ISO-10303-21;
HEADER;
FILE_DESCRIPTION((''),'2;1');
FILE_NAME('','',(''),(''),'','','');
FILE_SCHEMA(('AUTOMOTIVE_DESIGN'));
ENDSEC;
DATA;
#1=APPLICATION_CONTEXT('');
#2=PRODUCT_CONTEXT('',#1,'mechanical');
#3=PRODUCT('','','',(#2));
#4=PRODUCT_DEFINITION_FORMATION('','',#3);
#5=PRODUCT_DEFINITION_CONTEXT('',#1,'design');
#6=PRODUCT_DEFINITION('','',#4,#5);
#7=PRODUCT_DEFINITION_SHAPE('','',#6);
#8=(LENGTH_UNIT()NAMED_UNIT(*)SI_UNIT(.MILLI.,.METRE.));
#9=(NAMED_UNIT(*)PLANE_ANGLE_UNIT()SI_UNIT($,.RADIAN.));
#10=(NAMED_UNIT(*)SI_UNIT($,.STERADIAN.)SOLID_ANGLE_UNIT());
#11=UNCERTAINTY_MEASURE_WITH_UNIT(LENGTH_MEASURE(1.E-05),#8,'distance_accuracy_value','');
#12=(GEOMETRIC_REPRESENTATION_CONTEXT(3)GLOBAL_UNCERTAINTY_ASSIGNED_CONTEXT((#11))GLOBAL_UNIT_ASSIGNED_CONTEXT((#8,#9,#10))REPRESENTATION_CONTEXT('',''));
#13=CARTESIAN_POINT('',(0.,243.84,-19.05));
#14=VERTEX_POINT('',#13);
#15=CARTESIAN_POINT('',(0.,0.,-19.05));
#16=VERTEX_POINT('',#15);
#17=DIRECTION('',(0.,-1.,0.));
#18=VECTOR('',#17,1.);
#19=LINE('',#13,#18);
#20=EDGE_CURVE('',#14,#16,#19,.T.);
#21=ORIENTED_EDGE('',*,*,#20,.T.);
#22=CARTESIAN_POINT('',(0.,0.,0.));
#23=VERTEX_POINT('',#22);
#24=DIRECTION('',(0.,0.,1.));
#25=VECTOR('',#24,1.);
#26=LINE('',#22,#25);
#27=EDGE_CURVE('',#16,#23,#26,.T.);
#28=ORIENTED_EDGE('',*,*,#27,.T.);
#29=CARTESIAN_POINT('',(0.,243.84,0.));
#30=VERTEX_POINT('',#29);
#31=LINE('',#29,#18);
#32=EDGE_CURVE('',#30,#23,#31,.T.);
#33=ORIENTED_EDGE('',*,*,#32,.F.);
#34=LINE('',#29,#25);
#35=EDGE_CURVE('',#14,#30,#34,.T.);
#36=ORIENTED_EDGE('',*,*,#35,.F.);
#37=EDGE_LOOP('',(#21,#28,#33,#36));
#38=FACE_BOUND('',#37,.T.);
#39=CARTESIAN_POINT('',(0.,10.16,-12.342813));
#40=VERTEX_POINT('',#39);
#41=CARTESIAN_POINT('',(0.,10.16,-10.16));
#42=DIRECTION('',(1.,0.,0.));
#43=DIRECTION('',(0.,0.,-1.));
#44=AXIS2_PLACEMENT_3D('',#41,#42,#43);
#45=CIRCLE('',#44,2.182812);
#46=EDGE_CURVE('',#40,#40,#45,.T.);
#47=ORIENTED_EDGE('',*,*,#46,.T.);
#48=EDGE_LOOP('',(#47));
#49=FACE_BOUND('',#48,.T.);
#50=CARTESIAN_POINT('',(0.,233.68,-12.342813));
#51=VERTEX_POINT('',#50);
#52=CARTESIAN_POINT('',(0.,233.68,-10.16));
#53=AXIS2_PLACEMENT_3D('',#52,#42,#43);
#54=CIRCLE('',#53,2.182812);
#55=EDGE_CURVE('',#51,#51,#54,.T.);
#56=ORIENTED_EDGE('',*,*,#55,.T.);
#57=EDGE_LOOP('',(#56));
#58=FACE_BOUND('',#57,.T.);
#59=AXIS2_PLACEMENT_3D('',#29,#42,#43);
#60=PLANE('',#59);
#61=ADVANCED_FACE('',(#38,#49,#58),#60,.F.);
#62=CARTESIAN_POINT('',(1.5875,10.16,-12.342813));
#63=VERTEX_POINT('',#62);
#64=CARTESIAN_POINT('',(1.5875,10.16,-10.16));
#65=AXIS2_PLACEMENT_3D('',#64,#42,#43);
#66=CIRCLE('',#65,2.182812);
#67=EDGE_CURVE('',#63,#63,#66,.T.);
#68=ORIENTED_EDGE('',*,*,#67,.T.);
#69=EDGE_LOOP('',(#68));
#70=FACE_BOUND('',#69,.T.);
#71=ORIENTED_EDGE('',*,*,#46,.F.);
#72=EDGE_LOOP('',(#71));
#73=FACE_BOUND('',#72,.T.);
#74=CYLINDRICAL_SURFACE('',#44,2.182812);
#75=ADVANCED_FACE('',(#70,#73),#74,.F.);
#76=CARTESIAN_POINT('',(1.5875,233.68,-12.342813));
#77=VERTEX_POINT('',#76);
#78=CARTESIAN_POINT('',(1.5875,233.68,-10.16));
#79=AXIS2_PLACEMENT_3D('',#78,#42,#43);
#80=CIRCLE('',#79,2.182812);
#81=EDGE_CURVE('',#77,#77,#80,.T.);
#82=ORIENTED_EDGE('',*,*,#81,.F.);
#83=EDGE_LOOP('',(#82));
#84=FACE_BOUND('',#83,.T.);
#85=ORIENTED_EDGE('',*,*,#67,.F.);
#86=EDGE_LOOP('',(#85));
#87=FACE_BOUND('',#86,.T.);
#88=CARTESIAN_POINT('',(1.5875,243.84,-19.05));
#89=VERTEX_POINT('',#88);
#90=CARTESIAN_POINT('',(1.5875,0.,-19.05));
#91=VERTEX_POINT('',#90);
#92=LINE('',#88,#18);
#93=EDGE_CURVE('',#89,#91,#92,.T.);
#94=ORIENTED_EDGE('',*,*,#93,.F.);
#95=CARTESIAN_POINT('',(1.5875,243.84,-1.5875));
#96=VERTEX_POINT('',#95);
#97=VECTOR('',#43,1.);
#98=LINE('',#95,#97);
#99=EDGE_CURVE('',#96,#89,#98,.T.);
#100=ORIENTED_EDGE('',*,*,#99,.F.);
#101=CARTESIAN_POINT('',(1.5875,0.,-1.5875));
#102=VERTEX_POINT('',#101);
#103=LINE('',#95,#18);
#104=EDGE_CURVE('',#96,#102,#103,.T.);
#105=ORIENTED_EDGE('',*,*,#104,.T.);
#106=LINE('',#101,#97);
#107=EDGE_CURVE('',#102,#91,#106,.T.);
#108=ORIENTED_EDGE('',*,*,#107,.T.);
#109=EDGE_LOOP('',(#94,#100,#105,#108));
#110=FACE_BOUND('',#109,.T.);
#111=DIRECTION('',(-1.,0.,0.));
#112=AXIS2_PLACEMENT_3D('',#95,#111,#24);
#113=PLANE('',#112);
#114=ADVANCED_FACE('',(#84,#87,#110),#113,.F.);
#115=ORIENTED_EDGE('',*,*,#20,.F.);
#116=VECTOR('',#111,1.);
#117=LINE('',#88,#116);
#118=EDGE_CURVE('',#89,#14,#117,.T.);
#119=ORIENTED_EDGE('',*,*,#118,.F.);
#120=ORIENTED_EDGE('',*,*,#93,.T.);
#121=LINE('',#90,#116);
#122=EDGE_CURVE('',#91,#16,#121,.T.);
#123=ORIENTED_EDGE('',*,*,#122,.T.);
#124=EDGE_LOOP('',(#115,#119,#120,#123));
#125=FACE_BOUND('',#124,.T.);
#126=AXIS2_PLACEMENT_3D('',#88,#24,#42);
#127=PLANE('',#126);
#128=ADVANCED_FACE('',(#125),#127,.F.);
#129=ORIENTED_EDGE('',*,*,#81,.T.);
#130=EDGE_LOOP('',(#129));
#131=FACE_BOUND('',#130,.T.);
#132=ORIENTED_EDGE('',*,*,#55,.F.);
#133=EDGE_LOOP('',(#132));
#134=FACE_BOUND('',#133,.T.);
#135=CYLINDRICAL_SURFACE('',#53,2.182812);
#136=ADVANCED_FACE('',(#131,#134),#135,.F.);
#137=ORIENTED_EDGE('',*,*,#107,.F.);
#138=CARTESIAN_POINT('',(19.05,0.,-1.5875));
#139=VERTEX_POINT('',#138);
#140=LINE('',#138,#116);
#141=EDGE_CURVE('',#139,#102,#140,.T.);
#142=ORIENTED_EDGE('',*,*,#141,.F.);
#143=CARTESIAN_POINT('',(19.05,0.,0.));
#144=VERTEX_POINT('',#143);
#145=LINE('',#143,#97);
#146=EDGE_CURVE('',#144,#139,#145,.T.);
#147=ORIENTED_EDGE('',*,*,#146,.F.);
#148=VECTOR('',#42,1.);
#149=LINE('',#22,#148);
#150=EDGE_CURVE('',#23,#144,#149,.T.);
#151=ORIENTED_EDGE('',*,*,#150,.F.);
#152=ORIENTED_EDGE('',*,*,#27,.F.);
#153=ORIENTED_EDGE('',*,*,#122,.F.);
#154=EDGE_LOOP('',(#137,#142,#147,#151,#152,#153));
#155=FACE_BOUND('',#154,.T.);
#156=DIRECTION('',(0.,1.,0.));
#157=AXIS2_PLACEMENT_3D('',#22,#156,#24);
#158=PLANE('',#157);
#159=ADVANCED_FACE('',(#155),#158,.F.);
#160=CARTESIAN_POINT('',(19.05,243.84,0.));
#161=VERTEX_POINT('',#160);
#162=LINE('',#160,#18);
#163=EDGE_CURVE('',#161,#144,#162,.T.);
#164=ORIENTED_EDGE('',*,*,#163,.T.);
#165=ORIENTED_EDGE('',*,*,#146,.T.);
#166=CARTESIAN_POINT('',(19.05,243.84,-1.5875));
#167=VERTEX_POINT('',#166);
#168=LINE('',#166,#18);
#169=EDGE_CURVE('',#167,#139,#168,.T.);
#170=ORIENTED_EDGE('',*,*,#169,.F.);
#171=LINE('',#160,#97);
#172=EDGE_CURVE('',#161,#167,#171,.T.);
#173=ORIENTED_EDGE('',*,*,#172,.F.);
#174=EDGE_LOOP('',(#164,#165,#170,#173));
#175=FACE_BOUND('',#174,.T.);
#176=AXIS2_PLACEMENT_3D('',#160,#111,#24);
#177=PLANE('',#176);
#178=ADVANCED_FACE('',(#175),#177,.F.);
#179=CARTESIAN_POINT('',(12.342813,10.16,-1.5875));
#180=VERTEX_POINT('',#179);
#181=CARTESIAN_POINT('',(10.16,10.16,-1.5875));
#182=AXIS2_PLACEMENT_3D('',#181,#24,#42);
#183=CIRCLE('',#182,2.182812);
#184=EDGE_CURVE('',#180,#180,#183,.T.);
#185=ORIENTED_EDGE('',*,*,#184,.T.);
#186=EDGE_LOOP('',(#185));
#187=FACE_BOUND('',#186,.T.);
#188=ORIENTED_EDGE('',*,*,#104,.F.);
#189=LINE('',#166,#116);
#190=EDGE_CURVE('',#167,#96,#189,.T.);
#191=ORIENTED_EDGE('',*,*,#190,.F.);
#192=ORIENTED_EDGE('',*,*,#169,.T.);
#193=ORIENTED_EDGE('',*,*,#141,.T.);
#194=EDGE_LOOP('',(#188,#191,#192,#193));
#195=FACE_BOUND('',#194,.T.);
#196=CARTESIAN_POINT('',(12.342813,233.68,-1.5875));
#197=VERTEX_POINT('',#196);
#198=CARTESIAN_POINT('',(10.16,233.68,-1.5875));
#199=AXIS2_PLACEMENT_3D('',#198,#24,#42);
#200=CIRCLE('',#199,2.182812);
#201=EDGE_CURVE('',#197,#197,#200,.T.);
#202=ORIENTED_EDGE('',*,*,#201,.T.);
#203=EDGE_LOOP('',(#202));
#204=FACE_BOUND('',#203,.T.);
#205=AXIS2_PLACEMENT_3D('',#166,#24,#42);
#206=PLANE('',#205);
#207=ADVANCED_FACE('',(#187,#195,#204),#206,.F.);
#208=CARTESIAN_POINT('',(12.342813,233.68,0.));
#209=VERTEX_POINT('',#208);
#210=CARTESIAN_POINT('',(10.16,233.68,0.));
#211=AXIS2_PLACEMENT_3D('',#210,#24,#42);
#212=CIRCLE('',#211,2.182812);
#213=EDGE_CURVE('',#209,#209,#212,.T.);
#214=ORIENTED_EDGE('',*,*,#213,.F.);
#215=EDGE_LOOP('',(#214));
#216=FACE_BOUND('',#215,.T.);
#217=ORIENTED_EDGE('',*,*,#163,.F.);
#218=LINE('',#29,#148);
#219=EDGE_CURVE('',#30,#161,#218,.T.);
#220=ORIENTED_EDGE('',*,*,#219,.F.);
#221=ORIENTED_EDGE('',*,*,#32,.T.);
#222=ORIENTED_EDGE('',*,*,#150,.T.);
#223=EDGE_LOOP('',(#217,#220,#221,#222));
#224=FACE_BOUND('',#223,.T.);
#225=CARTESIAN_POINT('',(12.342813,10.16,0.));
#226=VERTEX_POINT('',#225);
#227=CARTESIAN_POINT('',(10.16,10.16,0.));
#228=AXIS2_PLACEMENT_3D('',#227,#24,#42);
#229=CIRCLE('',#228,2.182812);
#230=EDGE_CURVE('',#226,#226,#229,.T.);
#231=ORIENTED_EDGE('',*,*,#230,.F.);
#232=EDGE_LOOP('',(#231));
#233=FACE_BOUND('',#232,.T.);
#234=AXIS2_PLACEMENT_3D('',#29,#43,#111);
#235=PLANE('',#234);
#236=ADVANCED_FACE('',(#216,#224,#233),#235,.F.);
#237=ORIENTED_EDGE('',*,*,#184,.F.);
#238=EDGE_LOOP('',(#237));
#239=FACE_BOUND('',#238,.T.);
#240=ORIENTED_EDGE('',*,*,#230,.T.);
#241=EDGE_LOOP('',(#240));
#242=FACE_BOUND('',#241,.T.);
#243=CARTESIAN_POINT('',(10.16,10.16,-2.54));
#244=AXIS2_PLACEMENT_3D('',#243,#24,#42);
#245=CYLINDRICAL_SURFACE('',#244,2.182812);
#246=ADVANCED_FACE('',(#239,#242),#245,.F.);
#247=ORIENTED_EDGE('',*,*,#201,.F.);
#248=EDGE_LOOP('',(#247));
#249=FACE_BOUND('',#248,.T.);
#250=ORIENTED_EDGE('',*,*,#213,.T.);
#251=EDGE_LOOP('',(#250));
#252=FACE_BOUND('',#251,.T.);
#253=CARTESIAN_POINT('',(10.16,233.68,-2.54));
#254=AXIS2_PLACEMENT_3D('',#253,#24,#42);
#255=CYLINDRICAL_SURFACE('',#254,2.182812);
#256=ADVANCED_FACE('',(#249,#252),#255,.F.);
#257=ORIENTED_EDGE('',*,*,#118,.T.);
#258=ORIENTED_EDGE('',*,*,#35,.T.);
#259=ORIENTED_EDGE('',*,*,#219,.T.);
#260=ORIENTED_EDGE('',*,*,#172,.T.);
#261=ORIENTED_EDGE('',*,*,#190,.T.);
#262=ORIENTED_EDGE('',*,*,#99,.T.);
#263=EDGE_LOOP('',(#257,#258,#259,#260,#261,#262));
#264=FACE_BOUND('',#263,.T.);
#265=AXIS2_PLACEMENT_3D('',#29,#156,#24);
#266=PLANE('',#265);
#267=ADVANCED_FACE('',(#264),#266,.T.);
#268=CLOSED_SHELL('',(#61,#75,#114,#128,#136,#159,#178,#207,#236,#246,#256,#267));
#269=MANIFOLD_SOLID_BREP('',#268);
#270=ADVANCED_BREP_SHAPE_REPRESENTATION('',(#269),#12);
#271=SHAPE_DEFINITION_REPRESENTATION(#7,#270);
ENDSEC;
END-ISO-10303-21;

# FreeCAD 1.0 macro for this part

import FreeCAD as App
import Part
import Sketcher
from FreeCAD import Vector
Q = App.Units.Quantity

doc = App.newDocument("Part")
body = doc.addObject("PartDesign::Body", "Body")

# Sketch on XZ plane
sketch1 = doc.addObject("Sketcher::SketchObject", "Sketch")
body.addObject(sketch1)
sketch1.AttachmentSupport = (doc.XZ_Plane, [""])
sketch1.MapMode = "FlatFace"
sketch1.addGeometry(Part.LineSegment(Vector(0, -19.1, 0), Vector(0, 0, 0)), False)
sketch1.addGeometry(Part.LineSegment(Vector(0, 0, 0), Vector(19.1, 0, 0)), False)
sketch1.addGeometry(Part.LineSegment(Vector(19.1, 0, 0), Vector(19.1, -1.6, 0)), False)
sketch1.addGeometry(Part.LineSegment(Vector(19.1, -1.6, 0), Vector(1.6, -1.6, 0)), False)
sketch1.addGeometry(Part.LineSegment(Vector(1.6, -1.6, 0), Vector(1.6, -19.1, 0)), False)
sketch1.addGeometry(Part.LineSegment(Vector(1.6, -19.1, 0), Vector(0, -19.1, 0)), False)
sketch1.addConstraint(Sketcher.Constraint("Coincident", 0, 2, 1, 1))
sketch1.addConstraint(Sketcher.Constraint("Coincident", 1, 2, 2, 1))
sketch1.addConstraint(Sketcher.Constraint("Coincident", 2, 2, 3, 1))
sketch1.addConstraint(Sketcher.Constraint("Coincident", 3, 2, 4, 1))
sketch1.addConstraint(Sketcher.Constraint("Coincident", 4, 2, 5, 1))
sketch1.addConstraint(Sketcher.Constraint("Coincident", 5, 2, 0, 1))
sketch1.addConstraint(Sketcher.Constraint("Vertical", 0))
sketch1.addConstraint(Sketcher.Constraint("Horizontal", 1))
sketch1.addConstraint(Sketcher.Constraint("Vertical", 2))
sketch1.addConstraint(Sketcher.Constraint("Horizontal", 3))
sketch1.addConstraint(Sketcher.Constraint("Vertical", 4))
sketch1.addConstraint(Sketcher.Constraint("Horizontal", 5))
sketch1.addConstraint(Sketcher.Constraint("Coincident", 0, 2, -1, 1))
sketch1.addConstraint(Sketcher.Constraint("Equal", 1, 0))
sketch1.addConstraint(Sketcher.Constraint("Equal", 5, 2))
sketch1.addConstraint(Sketcher.Constraint("DistanceX", 1, 1, 1, 2, Q("0.75 in")))
sketch1.addConstraint(Sketcher.Constraint("DistanceX", 3, 2, 3, 1, Q("0.6875 in")))
pad1 = doc.addObject("PartDesign::Pad", "Pad")
body.addObject(pad1)
pad1.Profile = sketch1
pad1.Length = Q("9.6 in")
pad1.Reversed = True

# Sketch on XY plane
sketch2 = doc.addObject("Sketcher::SketchObject", "Sketch001")
body.addObject(sketch2)
sketch2.AttachmentSupport = (doc.XY_Plane, [""])
sketch2.MapMode = "FlatFace"
sketch2.addGeometry(Part.Circle(Vector(10.2, 233.7, 0), Vector(0, 0, 1), 2.2), False)
sketch2.addGeometry(Part.Circle(Vector(10.2, 10.2, 0), Vector(0, 0, 1), 2.2), False)
sketch2.addConstraint(Sketcher.Constraint("Equal", 0, 1))
sketch2.addConstraint(Sketcher.Constraint("Vertical", 0, 3, 1, 3))
sketch2.addConstraint(Sketcher.Constraint("Diameter", 0, Q("0.171875 in")))
sketch2.addConstraint(Sketcher.Constraint("DistanceX", -1, 1, 0, 3, Q("0.4 in")))
sketch2.addConstraint(Sketcher.Constraint("DistanceY", -1, 1, 0, 3, Q("9.2 in")))
sketch2.addConstraint(Sketcher.Constraint("DistanceY", -1, 1, 1, 3, Q("0.4 in")))
pocket1 = doc.addObject("PartDesign::Pocket", "Pocket")
body.addObject(pocket1)
pocket1.Profile = sketch2
pocket1.Length = Q("0.1 in")

# Sketch on YZ plane
sketch3 = doc.addObject("Sketcher::SketchObject", "Sketch002")
body.addObject(sketch3)
sketch3.AttachmentSupport = (doc.YZ_Plane, [""])
sketch3.MapMode = "FlatFace"
sketch3.AttachmentOffset = App.Placement(Vector(0, 0, 0.0625 * 25.4), App.Rotation())
sketch3.addGeometry(Part.Circle(Vector(233.7, -10.2, 0), Vector(0, 0, 1), 2.2), False)
sketch3.addGeometry(Part.Circle(Vector(10.2, -10.2, 0), Vector(0, 0, 1), 2.2), False)
sketch3.addConstraint(Sketcher.Constraint("Equal", 0, 1))
sketch3.addConstraint(Sketcher.Constraint("Horizontal", 0, 3, 1, 3))
sketch3.addConstraint(Sketcher.Constraint("Diameter", 0, Q("0.171875 in")))
sketch3.addConstraint(Sketcher.Constraint("DistanceX", -1, 1, 0, 3, Q("9.2 in")))
sketch3.addConstraint(Sketcher.Constraint("DistanceY", 0, 3, -1, 1, Q("0.4 in")))
sketch3.addConstraint(Sketcher.Constraint("DistanceX", -1, 1, 1, 3, Q("0.4 in")))
pocket2 = doc.addObject("PartDesign::Pocket", "Pocket001")
body.addObject(pocket2)
pocket2.Profile = sketch3
pocket2.Type = "ThroughAll"

doc.recompute()
